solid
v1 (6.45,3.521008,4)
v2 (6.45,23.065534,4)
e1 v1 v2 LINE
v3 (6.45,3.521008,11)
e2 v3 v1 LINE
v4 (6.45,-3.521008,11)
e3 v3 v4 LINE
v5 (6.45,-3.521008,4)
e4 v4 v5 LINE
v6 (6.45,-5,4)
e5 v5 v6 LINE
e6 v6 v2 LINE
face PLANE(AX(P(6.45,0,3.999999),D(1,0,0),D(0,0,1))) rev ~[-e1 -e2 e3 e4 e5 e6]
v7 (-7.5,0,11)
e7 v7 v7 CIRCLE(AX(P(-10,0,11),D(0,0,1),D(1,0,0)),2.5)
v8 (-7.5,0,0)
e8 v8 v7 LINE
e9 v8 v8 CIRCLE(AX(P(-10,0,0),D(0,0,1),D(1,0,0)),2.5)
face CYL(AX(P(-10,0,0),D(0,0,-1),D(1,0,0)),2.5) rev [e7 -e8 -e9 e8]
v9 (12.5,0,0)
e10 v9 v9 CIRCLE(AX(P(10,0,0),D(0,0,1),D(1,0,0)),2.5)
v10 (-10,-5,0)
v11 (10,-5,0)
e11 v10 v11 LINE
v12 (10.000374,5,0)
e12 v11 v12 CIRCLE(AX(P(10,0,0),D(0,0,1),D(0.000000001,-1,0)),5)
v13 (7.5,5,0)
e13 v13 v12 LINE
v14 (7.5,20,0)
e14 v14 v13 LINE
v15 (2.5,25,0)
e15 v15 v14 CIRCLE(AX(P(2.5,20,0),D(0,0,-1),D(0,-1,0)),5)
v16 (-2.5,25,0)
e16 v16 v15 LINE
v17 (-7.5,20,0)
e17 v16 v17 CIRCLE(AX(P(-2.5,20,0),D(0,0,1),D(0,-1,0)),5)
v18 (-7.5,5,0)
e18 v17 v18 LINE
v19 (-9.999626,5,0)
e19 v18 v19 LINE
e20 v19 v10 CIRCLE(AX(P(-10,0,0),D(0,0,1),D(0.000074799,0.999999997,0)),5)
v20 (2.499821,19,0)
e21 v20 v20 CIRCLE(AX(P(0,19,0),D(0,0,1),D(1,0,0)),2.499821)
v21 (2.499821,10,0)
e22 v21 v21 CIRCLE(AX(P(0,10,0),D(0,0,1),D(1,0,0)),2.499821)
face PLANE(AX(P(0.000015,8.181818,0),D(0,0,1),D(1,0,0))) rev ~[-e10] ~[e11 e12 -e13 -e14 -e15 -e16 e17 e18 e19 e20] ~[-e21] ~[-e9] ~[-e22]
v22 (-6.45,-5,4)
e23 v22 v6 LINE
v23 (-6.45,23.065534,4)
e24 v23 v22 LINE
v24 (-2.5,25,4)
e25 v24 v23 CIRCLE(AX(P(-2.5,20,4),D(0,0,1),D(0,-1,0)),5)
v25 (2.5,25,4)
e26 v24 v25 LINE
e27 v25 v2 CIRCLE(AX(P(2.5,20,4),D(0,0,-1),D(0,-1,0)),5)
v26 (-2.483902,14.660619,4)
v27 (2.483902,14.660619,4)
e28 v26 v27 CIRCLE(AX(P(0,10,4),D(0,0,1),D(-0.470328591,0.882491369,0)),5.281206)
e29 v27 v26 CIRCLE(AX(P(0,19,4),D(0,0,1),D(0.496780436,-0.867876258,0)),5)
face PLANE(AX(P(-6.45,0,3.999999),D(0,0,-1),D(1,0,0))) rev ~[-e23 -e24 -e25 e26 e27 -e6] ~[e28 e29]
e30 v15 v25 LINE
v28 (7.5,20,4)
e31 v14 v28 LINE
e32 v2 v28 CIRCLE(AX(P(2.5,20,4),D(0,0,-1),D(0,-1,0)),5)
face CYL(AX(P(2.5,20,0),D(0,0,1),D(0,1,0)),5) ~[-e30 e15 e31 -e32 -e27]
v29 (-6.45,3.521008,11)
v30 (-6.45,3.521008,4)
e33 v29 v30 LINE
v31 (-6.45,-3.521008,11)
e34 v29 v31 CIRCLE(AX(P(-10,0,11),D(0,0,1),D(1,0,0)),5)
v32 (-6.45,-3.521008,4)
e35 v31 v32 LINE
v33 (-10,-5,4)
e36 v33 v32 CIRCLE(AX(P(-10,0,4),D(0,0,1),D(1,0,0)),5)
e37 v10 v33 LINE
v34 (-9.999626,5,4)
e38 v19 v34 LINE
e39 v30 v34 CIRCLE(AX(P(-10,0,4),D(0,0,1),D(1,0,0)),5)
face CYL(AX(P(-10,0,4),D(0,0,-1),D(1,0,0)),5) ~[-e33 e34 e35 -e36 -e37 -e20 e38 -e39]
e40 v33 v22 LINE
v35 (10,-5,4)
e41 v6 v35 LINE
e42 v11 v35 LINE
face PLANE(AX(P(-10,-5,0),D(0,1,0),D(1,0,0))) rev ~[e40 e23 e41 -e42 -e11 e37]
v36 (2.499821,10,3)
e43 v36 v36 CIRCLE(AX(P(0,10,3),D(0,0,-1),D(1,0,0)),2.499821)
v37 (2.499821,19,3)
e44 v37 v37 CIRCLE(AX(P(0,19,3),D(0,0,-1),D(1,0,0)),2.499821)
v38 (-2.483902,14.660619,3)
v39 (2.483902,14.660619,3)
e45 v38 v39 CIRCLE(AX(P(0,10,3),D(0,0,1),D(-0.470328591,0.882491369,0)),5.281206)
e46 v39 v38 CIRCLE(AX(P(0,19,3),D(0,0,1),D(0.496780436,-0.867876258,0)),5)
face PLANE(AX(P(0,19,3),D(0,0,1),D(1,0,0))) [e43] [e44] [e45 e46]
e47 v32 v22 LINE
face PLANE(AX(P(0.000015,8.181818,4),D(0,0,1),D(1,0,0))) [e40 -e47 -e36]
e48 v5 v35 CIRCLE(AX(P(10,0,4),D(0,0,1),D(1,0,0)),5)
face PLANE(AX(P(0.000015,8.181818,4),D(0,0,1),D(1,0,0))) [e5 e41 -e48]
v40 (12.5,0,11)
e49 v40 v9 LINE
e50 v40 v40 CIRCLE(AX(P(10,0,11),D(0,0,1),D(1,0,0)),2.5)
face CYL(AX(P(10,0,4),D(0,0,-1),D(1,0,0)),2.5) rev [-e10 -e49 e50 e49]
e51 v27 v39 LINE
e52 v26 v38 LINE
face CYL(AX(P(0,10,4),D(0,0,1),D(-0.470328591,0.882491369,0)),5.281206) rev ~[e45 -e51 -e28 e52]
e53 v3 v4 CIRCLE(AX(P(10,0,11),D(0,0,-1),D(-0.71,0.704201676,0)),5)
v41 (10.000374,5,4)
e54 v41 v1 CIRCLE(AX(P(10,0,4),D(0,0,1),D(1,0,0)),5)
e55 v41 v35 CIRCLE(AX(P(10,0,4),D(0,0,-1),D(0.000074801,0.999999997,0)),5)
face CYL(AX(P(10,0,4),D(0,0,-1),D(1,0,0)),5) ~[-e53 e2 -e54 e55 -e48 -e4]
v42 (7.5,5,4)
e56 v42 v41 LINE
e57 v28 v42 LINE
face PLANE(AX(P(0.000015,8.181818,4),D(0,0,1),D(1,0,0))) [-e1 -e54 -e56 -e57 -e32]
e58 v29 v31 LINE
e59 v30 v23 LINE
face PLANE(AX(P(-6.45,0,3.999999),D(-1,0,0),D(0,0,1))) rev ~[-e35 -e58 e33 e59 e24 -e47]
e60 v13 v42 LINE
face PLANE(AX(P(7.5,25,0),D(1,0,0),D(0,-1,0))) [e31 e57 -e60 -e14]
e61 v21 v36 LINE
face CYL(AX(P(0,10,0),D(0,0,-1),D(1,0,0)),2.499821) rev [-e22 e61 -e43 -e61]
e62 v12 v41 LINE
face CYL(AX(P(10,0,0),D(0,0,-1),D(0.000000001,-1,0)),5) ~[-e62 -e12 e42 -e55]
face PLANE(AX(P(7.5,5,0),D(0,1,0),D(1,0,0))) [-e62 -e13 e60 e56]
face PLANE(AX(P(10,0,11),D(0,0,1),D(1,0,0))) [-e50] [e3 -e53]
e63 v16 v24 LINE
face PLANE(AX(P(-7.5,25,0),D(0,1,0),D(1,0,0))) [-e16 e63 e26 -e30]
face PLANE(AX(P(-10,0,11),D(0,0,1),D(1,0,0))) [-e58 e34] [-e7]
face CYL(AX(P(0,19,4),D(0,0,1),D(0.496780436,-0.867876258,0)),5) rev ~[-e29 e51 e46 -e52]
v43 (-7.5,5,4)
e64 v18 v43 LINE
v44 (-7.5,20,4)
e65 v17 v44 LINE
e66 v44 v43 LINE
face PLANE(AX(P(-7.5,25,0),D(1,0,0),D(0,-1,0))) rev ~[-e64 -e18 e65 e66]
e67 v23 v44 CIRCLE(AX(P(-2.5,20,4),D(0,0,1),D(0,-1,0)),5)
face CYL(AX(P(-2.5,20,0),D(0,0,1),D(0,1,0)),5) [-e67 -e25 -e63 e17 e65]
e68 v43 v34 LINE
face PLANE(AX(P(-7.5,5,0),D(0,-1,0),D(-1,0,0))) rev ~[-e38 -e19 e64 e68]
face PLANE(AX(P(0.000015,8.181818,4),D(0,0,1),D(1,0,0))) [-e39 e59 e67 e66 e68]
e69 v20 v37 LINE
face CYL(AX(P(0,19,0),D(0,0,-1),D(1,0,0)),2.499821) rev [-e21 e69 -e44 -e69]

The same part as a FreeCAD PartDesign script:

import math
import FreeCAD as App
import Part
import Sketcher
Q = App.Units.Quantity


def edges_at(feature, points):
    """Names of the edges that pass closest to the given points."""
    edges = feature.Shape.Edges
    near = lambda p: min(range(len(edges)), key=lambda i: edges[i].distToShape(Part.Vertex(*p))[0])
    return sorted({f"Edge{near(p) + 1}" for p in points})


def add_polygon(sketch, points):
    """Adds a closed chain of lines whose ends are joined by coincident constraints."""
    first, n = sketch.GeometryCount, len(points)
    for a, b in zip(points, points[1:] + points[:1]):
        sketch.addGeometry(Part.LineSegment(App.Vector(*a, 0), App.Vector(*b, 0)), False)
    for i in range(n):
        sketch.addConstraint(Sketcher.Constraint("Coincident", first + i, 2, first + (i + 1) % n, 1))

doc = App.newDocument("Part")
body = doc.addObject("PartDesign::Body", "Body")

# Sketch on XY plane
sketch1 = body.newObject("Sketcher::SketchObject", "Sketch")
sketch1.AttachmentSupport = (doc.getObject("XY_Plane"), [""])
sketch1.MapMode = "FlatFace"
sketch1.addGeometry([
    Part.LineSegment(App.Vector(-10, -5, 0), App.Vector(10, -5, 0)),  # 0
    Part.ArcOfCircle(Part.Circle(App.Vector(10, 0, 0), App.Vector(0, 0, 1), 5), math.radians(-90), math.radians(90)),  # 1
    Part.LineSegment(App.Vector(10, 5, 0), App.Vector(7.5, 5, 0)),  # 2
    Part.LineSegment(App.Vector(7.5, 5, 0), App.Vector(7.5, 25, 0)),  # 3
    Part.LineSegment(App.Vector(7.5, 25, 0), App.Vector(-7.5, 25, 0)),  # 4
    Part.LineSegment(App.Vector(-7.5, 25, 0), App.Vector(-7.5, 5, 0)),  # 5
    Part.LineSegment(App.Vector(-7.5, 5, 0), App.Vector(-10, 5, 0)),  # 6
    Part.ArcOfCircle(Part.Circle(App.Vector(-10, 0, 0), App.Vector(0, 0, 1), 5), math.radians(90), math.radians(270)),  # 7
    Part.Circle(App.Vector(-10, 0, 0), App.Vector(0, 0, 1), 2.5),  # 8
    Part.Circle(App.Vector(10, 0, 0), App.Vector(0, 0, 1), 2.5),  # 9
    Part.Circle(App.Vector(0, 10, 0), App.Vector(0, 0, 1), 2.5),  # 10
    Part.Circle(App.Vector(0, 19, 0), App.Vector(0, 0, 1), 2.5),  # 11
], False)
sketch1.addConstraint([
    Sketcher.Constraint("Tangent", 0, 2, 1, 1),
    Sketcher.Constraint("Coincident", 1, 2, 2, 1),
    Sketcher.Constraint("Coincident", 2, 2, 3, 1),
    Sketcher.Constraint("Coincident", 3, 2, 4, 1),
    Sketcher.Constraint("Coincident", 4, 2, 5, 1),
    Sketcher.Constraint("Coincident", 5, 2, 6, 1),
    Sketcher.Constraint("Coincident", 6, 2, 7, 1),
    Sketcher.Constraint("Tangent", 7, 2, 0, 1),
    Sketcher.Constraint("Horizontal", 0),
    Sketcher.Constraint("Horizontal", 2),
    Sketcher.Constraint("Vertical", 3),
    Sketcher.Constraint("Horizontal", 4),
    Sketcher.Constraint("Vertical", 5),
    Sketcher.Constraint("Horizontal", 6),
    Sketcher.Constraint("Coincident", 8, 3, 7, 3),
    Sketcher.Constraint("Coincident", 9, 3, 1, 3),
    Sketcher.Constraint("Equal", 1, 7),
    Sketcher.Constraint("Equal", 8, 9),
    Sketcher.Constraint("Equal", 10, 11),
    Sketcher.Constraint("Symmetric", 1, 3, 7, 3, -1, 1),
    Sketcher.Constraint("PointOnObject", 10, 3, -2),
    Sketcher.Constraint("PointOnObject", 11, 3, -2),
    Sketcher.Constraint("Equal", 0, 3),
    Sketcher.Constraint("Diameter", 8, Q("5 mm")),
    Sketcher.Constraint("Radius", 1, Q("5 mm")),
    Sketcher.Constraint("DistanceX", 0, 1, 0, 2, Q("20 mm")),
    Sketcher.Constraint("DistanceX", 4, 2, 4, 1, Q("15 mm")),
    Sketcher.Constraint("DistanceY", -1, 1, 10, 3, Q("10 mm")),
    Sketcher.Constraint("DistanceY", -1, 1, 11, 3, Q("19 mm")),
    Sketcher.Constraint("DistanceX", -1, 1, 2, 2, Q("7.5 mm")),
    Sketcher.Constraint("Diameter", 10, Q("4.999642 mm")),
    Sketcher.Constraint("DistanceX", 2, 2, 2, 1, Q("2.500374 mm")),
    Sketcher.Constraint("DistanceX", 6, 2, 6, 1, Q("2.499626 mm")),
])
pad1 = body.newObject("PartDesign::Pad", "Pad")
pad1.Profile = sketch1
pad1.Length = 4

# Sketch on XY plane
sketch2 = body.newObject("Sketcher::SketchObject", "Sketch001")
sketch2.AttachmentSupport = (doc.getObject("XY_Plane"), [""])
sketch2.MapMode = "FlatFace"
sketch2.AttachmentOffset = App.Placement(App.Vector(0, 0, 4), App.Rotation())
sketch2.addGeometry([
    Part.Circle(App.Vector(10, 0, 0), App.Vector(0, 0, 1), 5),
    Part.Circle(App.Vector(10, 0, 0), App.Vector(0, 0, 1), 2.5),
    Part.Circle(App.Vector(-10, 0, 0), App.Vector(0, 0, 1), 5),
    Part.Circle(App.Vector(-10, 0, 0), App.Vector(0, 0, 1), 2.5),
], False)
sketch2.addConstraint([
    Sketcher.Constraint("Coincident", 1, 3, 0, 3),
    Sketcher.Constraint("Coincident", 3, 3, 2, 3),
    Sketcher.Constraint("Equal", 0, 2),
    Sketcher.Constraint("Equal", 1, 3),
    Sketcher.Constraint("Symmetric", 0, 3, 2, 3, -1, 1),
    Sketcher.Constraint("PointOnObject", 0, 3, -1),
    Sketcher.Constraint("Diameter", 0, Q("10 mm")),
    Sketcher.Constraint("Diameter", 1, Q("5 mm")),
    Sketcher.Constraint("DistanceX", -1, 1, 0, 3, Q("10 mm")),
])
pad2 = body.newObject("PartDesign::Pad", "Pad001")
pad2.Profile = sketch2
pad2.Length = 7
doc.recompute()

fillet = body.newObject("PartDesign::Fillet", "Fillet")
fillet.Base = (pad2, edges_at(pad2, [(-7.5, 25, 2), (7.5, 25, 2)]))
fillet.Radius = 5

# Sketch on XZ plane
sketch3 = body.newObject("Sketcher::SketchObject", "Sketch002")
sketch3.AttachmentSupport = (doc.getObject("XZ_Plane"), [""])
sketch3.MapMode = "FlatFace"
add_polygon(sketch3, [(-6, 13), (-6, 4), (6, 4), (6, 13)])  # lines 0-3
sketch3.addConstraint([
    Sketcher.Constraint("Vertical", 0),
    Sketcher.Constraint("Horizontal", 1),
    Sketcher.Constraint("Vertical", 2),
    Sketcher.Constraint("Horizontal", 3),
    Sketcher.Constraint("DistanceX", 1, 1, 1, 2, Q("12.9 mm")),
    Sketcher.Constraint("DistanceY", -1, 1, 0, 2, Q("3.999999 mm")),
    Sketcher.Constraint("DistanceX", 0, 2, -1, 1, Q("6.45 mm")),
    Sketcher.Constraint("DistanceY", 0, 2, 0, 1, Q("8.550953 mm")),
])
pocket1 = body.newObject("PartDesign::Pocket", "Pocket")
pocket1.Profile = sketch3
pocket1.Type = "ThroughAll"
pocket1.Midplane = True

# Sketch on XY plane
sketch4 = body.newObject("Sketcher::SketchObject", "Sketch003")
sketch4.AttachmentSupport = (doc.getObject("XY_Plane"), [""])
sketch4.MapMode = "FlatFace"
sketch4.AttachmentOffset = App.Placement(App.Vector(0, 0, 4), App.Rotation())
sketch4.addGeometry([
    Part.ArcOfCircle(Part.Circle(App.Vector(0, 19, 0), App.Vector(0, 0, 1), 5), math.radians(-60), math.radians(240)),
    Part.ArcOfCircle(Part.Circle(App.Vector(0, 10, 0), App.Vector(0, 0, 1), 5.3), math.radians(118), math.radians(422)),
], False)
sketch4.addConstraint([
    Sketcher.Constraint("Coincident", 0, 1, 1, 2),
    Sketcher.Constraint("Coincident", 1, 1, 0, 2),
    Sketcher.Constraint("Symmetric", 0, 1, 1, 1, -2),
    Sketcher.Constraint("Radius", 0, Q("5 mm")),
    Sketcher.Constraint("DistanceY", -1, 1, 0, 3, Q("19 mm")),
    Sketcher.Constraint("DistanceY", -1, 1, 1, 3, Q("10 mm")),
    Sketcher.Constraint("Radius", 1, Q("5.281206 mm")),
])
pocket2 = body.newObject("PartDesign::Pocket", "Pocket001")
pocket2.Profile = sketch4
pocket2.Length = 1

doc.recompute()
